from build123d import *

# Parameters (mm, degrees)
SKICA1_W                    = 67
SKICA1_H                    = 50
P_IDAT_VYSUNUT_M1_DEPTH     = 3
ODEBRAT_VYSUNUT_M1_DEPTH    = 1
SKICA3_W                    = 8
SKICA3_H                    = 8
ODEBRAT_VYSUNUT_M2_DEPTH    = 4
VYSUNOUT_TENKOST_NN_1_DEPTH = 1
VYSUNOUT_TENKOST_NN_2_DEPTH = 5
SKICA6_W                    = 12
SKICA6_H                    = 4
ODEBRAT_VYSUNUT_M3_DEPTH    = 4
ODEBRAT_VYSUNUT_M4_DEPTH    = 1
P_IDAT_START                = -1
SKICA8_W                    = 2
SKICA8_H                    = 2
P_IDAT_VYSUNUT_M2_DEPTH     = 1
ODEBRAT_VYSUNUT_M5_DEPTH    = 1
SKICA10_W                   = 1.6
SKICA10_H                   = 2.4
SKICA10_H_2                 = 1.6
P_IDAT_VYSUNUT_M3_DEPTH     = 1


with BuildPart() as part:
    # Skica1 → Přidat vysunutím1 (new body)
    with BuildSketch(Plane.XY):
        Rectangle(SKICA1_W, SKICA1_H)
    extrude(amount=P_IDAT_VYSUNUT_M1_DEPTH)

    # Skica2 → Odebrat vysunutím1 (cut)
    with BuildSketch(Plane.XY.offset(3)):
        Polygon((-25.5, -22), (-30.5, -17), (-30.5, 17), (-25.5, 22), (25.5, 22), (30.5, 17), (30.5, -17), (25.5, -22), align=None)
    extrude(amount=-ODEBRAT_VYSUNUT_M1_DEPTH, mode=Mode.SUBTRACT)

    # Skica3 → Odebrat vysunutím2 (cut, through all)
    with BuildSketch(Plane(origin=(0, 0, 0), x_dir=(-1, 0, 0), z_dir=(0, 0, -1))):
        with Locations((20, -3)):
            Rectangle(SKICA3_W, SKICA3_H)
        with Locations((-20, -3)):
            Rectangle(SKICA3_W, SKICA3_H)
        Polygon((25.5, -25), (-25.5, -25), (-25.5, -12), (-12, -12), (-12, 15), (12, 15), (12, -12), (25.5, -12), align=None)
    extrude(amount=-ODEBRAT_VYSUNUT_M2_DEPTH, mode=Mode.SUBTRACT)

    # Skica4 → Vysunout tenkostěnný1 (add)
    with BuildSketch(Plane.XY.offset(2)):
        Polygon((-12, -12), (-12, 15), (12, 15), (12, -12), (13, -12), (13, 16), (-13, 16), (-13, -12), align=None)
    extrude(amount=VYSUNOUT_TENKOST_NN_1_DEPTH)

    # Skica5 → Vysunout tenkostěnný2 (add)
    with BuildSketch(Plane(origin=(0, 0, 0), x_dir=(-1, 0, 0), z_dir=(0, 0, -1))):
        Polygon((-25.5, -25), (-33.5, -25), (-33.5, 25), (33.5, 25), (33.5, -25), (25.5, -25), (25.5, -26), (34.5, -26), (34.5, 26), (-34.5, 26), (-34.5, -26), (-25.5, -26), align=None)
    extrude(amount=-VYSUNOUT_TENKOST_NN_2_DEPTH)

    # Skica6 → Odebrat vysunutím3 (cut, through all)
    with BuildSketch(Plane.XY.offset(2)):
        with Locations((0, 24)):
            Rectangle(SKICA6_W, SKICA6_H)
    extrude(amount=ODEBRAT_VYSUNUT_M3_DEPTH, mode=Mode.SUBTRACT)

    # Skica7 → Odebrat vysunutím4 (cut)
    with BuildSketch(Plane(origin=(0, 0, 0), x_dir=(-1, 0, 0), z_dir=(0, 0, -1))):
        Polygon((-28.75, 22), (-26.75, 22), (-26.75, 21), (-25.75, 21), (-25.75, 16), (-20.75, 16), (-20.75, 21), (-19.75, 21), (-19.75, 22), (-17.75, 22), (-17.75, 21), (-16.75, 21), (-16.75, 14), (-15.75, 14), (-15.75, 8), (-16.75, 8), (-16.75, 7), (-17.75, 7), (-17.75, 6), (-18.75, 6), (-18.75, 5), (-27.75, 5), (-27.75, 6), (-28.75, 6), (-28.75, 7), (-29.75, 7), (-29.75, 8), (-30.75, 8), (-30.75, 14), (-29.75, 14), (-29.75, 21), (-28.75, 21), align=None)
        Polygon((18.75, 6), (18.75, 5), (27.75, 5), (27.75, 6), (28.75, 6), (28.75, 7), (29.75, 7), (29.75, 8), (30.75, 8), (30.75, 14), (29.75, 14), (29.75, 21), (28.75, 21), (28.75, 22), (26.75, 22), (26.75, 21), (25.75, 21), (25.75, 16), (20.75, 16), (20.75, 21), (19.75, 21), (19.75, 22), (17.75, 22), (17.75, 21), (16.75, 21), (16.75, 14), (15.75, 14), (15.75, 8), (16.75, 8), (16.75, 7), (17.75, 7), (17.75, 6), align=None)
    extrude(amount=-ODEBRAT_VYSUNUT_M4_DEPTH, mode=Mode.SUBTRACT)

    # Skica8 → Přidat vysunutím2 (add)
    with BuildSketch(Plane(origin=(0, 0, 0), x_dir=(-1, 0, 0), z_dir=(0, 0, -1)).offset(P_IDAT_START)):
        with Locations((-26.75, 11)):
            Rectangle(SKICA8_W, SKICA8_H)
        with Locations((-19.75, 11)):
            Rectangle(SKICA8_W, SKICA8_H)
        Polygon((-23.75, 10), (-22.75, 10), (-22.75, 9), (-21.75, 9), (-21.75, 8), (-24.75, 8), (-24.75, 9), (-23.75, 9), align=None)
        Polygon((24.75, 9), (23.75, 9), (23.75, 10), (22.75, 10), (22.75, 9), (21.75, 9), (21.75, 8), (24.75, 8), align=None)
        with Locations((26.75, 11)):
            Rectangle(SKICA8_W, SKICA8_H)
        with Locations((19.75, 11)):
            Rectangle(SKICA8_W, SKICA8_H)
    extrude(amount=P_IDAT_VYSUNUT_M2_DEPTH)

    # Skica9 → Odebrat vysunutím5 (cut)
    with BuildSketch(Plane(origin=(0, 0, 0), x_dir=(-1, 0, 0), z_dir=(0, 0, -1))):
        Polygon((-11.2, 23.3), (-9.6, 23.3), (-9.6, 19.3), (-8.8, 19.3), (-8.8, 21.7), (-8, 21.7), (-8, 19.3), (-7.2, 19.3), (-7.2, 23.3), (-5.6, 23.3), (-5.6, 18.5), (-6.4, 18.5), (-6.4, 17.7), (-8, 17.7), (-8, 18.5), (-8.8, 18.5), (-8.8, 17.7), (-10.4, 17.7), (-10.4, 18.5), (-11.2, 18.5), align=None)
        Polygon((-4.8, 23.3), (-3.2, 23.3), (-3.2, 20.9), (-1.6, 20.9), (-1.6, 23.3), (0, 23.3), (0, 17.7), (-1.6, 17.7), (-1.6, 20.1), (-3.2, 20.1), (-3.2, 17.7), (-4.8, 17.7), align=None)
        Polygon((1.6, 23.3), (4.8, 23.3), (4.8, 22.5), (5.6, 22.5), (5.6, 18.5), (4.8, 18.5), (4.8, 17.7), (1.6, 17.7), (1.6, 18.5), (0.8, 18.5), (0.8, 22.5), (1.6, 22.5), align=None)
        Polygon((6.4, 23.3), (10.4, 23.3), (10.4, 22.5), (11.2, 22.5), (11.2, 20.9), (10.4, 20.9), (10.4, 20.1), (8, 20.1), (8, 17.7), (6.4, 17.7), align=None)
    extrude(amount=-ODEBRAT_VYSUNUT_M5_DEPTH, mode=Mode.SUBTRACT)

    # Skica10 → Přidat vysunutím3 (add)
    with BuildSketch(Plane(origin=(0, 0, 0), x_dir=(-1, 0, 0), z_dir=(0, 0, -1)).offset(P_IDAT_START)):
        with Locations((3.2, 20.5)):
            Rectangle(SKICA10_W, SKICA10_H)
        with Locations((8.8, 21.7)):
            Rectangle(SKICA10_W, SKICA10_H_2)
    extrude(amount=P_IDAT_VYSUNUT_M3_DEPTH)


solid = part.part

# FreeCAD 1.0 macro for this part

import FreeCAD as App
import Part
import Sketcher
from FreeCAD import Vector
Q = App.Units.Quantity


def add_polygon(sketch, points):
    """Adds a closed chain of lines whose ends are joined by coincident constraints."""
    first, n = sketch.GeometryCount, len(points)
    for a, b in zip(points, points[1:] + points[:1]):
        sketch.addGeometry(Part.LineSegment(App.Vector(*a, 0), App.Vector(*b, 0)), False)
    for i in range(n):
        sketch.addConstraint(Sketcher.Constraint("Coincident", first + i, 2, first + (i + 1) % n, 1))

doc = App.newDocument("Part")
params = doc.addObject("Spreadsheet::Sheet", "Params")
for row, (alias, value) in enumerate([
    ("sketch1_width", "67 mm"),
    ("sketch1_height", "50 mm"),
    ("pad1_length", "3 mm"),
    ("sketch2_width", "51 mm"),
    ("sketch2_height", "34 mm"),
    ("pocket1_length", "1 mm"),
    ("sketch3_width", "8 mm"),
    ("sketch3_width2", "51 mm"),
    ("sketch3_width3", "24 mm"),
    ("sketch3_height", "13 mm"),
    ("sketch3_height2", "27 mm"),
    ("sketch4_width", "24 mm"),
    ("sketch4_width2", "1 mm"),
    ("sketch4_height", "27 mm"),
    ("sketch4_height2", "28 mm"),
    ("pad2_length", "1 mm"),
    ("sketch5_width", "8 mm"),
    ("sketch5_width2", "67 mm"),
    ("sketch5_width3", "9 mm"),
    ("sketch5_height", "50 mm"),
    ("sketch5_height2", "1 mm"),
    ("pad3_length", "5 mm"),
    ("sketch6_width", "12 mm"),
    ("sketch6_height", "4 mm"),
    ("sketch7_width", "2 mm"),
    ("sketch7_width2", "1 mm"),
    ("sketch7_width3", "9 mm"),
    ("sketch7_height", "7 mm"),
    ("sketch7_height2", "6 mm"),
    ("pocket4_length", "1 mm"),
    ("sketch8_width", "2 mm"),
    ("sketch8_width2", "1 mm"),
    ("pad4_length", "1 mm"),
    ("sketch9_width", "4 mm"),
    ("sketch9_width2", "1.6 mm"),
    ("pocket5_length", "1 mm"),
    ("sketch10_width", "1.6 mm"),
    ("sketch10_height", "2.4 mm"),
    ("pad5_length", "1 mm"),
], start=1):
    params.set(f"A{row}", alias)
    params.set(f"B{row}", "=" + value)
    params.setAlias(f"B{row}", alias)

body = doc.addObject("PartDesign::Body", "Body")

# Sketch on XY plane
sketch1 = body.newObject("Sketcher::SketchObject", "Sketch")
sketch1.AttachmentSupport = (doc.getObject("XY_Plane"), [""])
sketch1.MapMode = "FlatFace"
add_polygon(sketch1, [(-34, 25), (-34, -25), (34, -25), (34, 25)])  # lines 0-3
sketch1.addConstraint(Sketcher.Constraint("Vertical", 0))
sketch1.addConstraint(Sketcher.Constraint("Horizontal", 1))
sketch1.addConstraint(Sketcher.Constraint("Vertical", 2))
sketch1.addConstraint(Sketcher.Constraint("Horizontal", 3))
sketch1.addConstraint(Sketcher.Constraint("Symmetric", 0, 2, 2, 2, -1, 1))
sketch1.addConstraint(Sketcher.Constraint("DistanceX", 1, 1, 1, 2, Q("67 mm")))
sketch1.addConstraint(Sketcher.Constraint("DistanceY", 0, 2, 0, 1, Q("50 mm")))
sketch1.setExpression("Constraints[9]", "Params.sketch1_width")
sketch1.setExpression("Constraints[10]", "Params.sketch1_height")
pad1 = body.newObject("PartDesign::Pad", "Pad")
pad1.Profile = sketch1
pad1.setExpression("Length", "Params.pad1_length")

# Sketch on XY plane
sketch2 = body.newObject("Sketcher::SketchObject", "Sketch001")
sketch2.AttachmentSupport = (doc.getObject("XY_Plane"), [""])
sketch2.MapMode = "FlatFace"
sketch2.AttachmentOffset = App.Placement(Vector(0, 0, 3), App.Rotation())
add_polygon(sketch2, [(-30, -17), (-26, -22), (26, -22), (30, -17), (30, 17), (26, 22), (-26, 22), (-30, 17)])  # lines 0-7
sketch2.addConstraint(Sketcher.Constraint("Horizontal", 1))
sketch2.addConstraint(Sketcher.Constraint("Vertical", 3))
sketch2.addConstraint(Sketcher.Constraint("Horizontal", 5))
sketch2.addConstraint(Sketcher.Constraint("Vertical", 7))
sketch2.addConstraint(Sketcher.Constraint("Symmetric", 0, 2, 4, 2, -1, 1))
sketch2.addConstraint(Sketcher.Constraint("Symmetric", 2, 2, 6, 2, -1, 1))
sketch2.addConstraint(Sketcher.Constraint("Perpendicular", 0, 2))
sketch2.addConstraint(Sketcher.Constraint("Perpendicular", 2, 4))
sketch2.addConstraint(Sketcher.Constraint("Perpendicular", 4, 6))
sketch2.addConstraint(Sketcher.Constraint("Horizontal", 3, 2, 6, 2))
sketch2.addConstraint(Sketcher.Constraint("Vertical", 1, 2, 4, 2))
sketch2.addConstraint(Sketcher.Constraint("DistanceX", 1, 1, 1, 2, Q("51 mm")))
sketch2.addConstraint(Sketcher.Constraint("DistanceY", 3, 1, 3, 2, Q("34 mm")))
sketch2.addConstraint(Sketcher.Constraint("DistanceY", 0, 2, -1, 1, Q("22 mm")))
sketch2.setExpression("Constraints[19]", "Params.sketch2_width")
sketch2.setExpression("Constraints[20]", "Params.sketch2_height")
pocket1 = body.newObject("PartDesign::Pocket", "Pocket")
pocket1.Profile = sketch2
pocket1.setExpression("Length", "Params.pocket1_length")

# Sketch on XY plane
sketch3 = body.newObject("Sketcher::SketchObject", "Sketch002")
sketch3.AttachmentSupport = (doc.getObject("XY_Plane"), [""])
sketch3.MapMode = "FlatFace"
add_polygon(sketch3, [(-16, 1), (-16, -7), (-24, -7), (-24, 1)])  # lines 0-3
add_polygon(sketch3, [(24, 1), (24, -7), (16, -7), (16, 1)])  # lines 4-7
add_polygon(sketch3, [(26, -25), (-26, -25), (-26, -12), (-12, -12), (-12, 15), (12, 15), (12, -12), (26, -12)])  # lines 8-15
sketch3.addConstraint(Sketcher.Constraint("Vertical", 0))
sketch3.addConstraint(Sketcher.Constraint("Horizontal", 1))
sketch3.addConstraint(Sketcher.Constraint("Vertical", 2))
sketch3.addConstraint(Sketcher.Constraint("Horizontal", 3))
sketch3.addConstraint(Sketcher.Constraint("Vertical", 4))
sketch3.addConstraint(Sketcher.Constraint("Horizontal", 5))
sketch3.addConstraint(Sketcher.Constraint("Vertical", 6))
sketch3.addConstraint(Sketcher.Constraint("Horizontal", 7))
sketch3.addConstraint(Sketcher.Constraint("Horizontal", 8))
sketch3.addConstraint(Sketcher.Constraint("Vertical", 9))
sketch3.addConstraint(Sketcher.Constraint("Horizontal", 10))
sketch3.addConstraint(Sketcher.Constraint("Vertical", 11))
sketch3.addConstraint(Sketcher.Constraint("Horizontal", 12))
sketch3.addConstraint(Sketcher.Constraint("Vertical", 13))
sketch3.addConstraint(Sketcher.Constraint("Horizontal", 14))
sketch3.addConstraint(Sketcher.Constraint("Vertical", 15))
sketch3.addConstraint(Sketcher.Constraint("Symmetric", 1, 2, 4, 2, -2))
sketch3.addConstraint(Sketcher.Constraint("Symmetric", 3, 2, 6, 2, -2))
sketch3.addConstraint(Sketcher.Constraint("Symmetric", 10, 2, 13, 2, -2))
sketch3.addConstraint(Sketcher.Constraint("Equal", 10, 14))
sketch3.addConstraint(Sketcher.Constraint("Equal", 7, 0))
sketch3.addConstraint(Sketcher.Constraint("DistanceX", 1, 2, 1, 1, Q("8 mm")))
sketch3.addConstraint(Sketcher.Constraint("DistanceX", 8, 2, 8, 1, Q("51 mm")))
sketch3.addConstraint(Sketcher.Constraint("DistanceX", 12, 1, 12, 2, Q("24 mm")))
sketch3.addConstraint(Sketcher.Constraint("DistanceY", 9, 1, 9, 2, Q("13 mm")))
sketch3.addConstraint(Sketcher.Constraint("DistanceY", 11, 1, 11, 2, Q("27 mm")))
sketch3.addConstraint(Sketcher.Constraint("DistanceX", 0, 2, -1, 1, Q("16 mm")))
sketch3.addConstraint(Sketcher.Constraint("DistanceY", 0, 2, -1, 1, Q("7 mm")))
sketch3.addConstraint(Sketcher.Constraint("DistanceY", 8, 2, -1, 1, Q("25 mm")))
sketch3.setExpression("Constraints[37]", "Params.sketch3_width")
sketch3.setExpression("Constraints[38]", "Params.sketch3_width2")
sketch3.setExpression("Constraints[39]", "Params.sketch3_width3")
sketch3.setExpression("Constraints[40]", "Params.sketch3_height")
sketch3.setExpression("Constraints[41]", "Params.sketch3_height2")
pocket2 = body.newObject("PartDesign::Pocket", "Pocket001")
pocket2.Profile = sketch3
pocket2.Type = "ThroughAll"
pocket2.Reversed = True

# Sketch on XY plane
sketch4 = body.newObject("Sketcher::SketchObject", "Sketch003")
sketch4.AttachmentSupport = (doc.getObject("XY_Plane"), [""])
sketch4.MapMode = "FlatFace"
sketch4.AttachmentOffset = App.Placement(Vector(0, 0, 2), App.Rotation())
add_polygon(sketch4, [(-12, -12), (-12, 15), (12, 15), (12, -12), (13, -12), (13, 16), (-13, 16), (-13, -12)])  # lines 0-7
sketch4.addConstraint(Sketcher.Constraint("Vertical", 0))
sketch4.addConstraint(Sketcher.Constraint("Horizontal", 1))
sketch4.addConstraint(Sketcher.Constraint("Vertical", 2))
sketch4.addConstraint(Sketcher.Constraint("Horizontal", 3))
sketch4.addConstraint(Sketcher.Constraint("Vertical", 4))
sketch4.addConstraint(Sketcher.Constraint("Horizontal", 5))
sketch4.addConstraint(Sketcher.Constraint("Vertical", 6))
sketch4.addConstraint(Sketcher.Constraint("Horizontal", 7))
sketch4.addConstraint(Sketcher.Constraint("Symmetric", 3, 2, 6, 2, -2))
sketch4.addConstraint(Sketcher.Constraint("Equal", 3, 7))
sketch4.addConstraint(Sketcher.Constraint("DistanceX", 1, 1, 1, 2, Q("24 mm")))
sketch4.addConstraint(Sketcher.Constraint("DistanceX", 3, 1, 3, 2, Q("1 mm")))
sketch4.addConstraint(Sketcher.Constraint("DistanceY", 0, 1, 0, 2, Q("27 mm")))
sketch4.addConstraint(Sketcher.Constraint("DistanceY", 4, 1, 4, 2, Q("28 mm")))
sketch4.addConstraint(Sketcher.Constraint("DistanceY", -1, 1, 0, 2, Q("15 mm")))
sketch4.setExpression("Constraints[18]", "Params.sketch4_width")
sketch4.setExpression("Constraints[19]", "Params.sketch4_width2")
sketch4.setExpression("Constraints[20]", "Params.sketch4_height")
sketch4.setExpression("Constraints[21]", "Params.sketch4_height2")
pad2 = body.newObject("PartDesign::Pad", "Pad001")
pad2.Profile = sketch4
pad2.setExpression("Length", "Params.pad2_length")

# Sketch on XY plane
sketch5 = body.newObject("Sketcher::SketchObject", "Sketch004")
sketch5.AttachmentSupport = (doc.getObject("XY_Plane"), [""])
sketch5.MapMode = "FlatFace"
add_polygon(sketch5, [(25.5, -25), (33.5, -25), (33.5, 25), (-33.5, 25), (-33.5, -25), (-25.5, -25), (-25.5, -26), (-34.5, -26), (-34.5, 26), (34.5, 26), (34.5, -26), (25.5, -26)])  # lines 0-11
sketch5.addConstraint(Sketcher.Constraint("Horizontal", 0))
sketch5.addConstraint(Sketcher.Constraint("Vertical", 1))
sketch5.addConstraint(Sketcher.Constraint("Horizontal", 2))
sketch5.addConstraint(Sketcher.Constraint("Vertical", 3))
sketch5.addConstraint(Sketcher.Constraint("Horizontal", 4))
sketch5.addConstraint(Sketcher.Constraint("Vertical", 5))
sketch5.addConstraint(Sketcher.Constraint("Horizontal", 6))
sketch5.addConstraint(Sketcher.Constraint("Vertical", 7))
sketch5.addConstraint(Sketcher.Constraint("Horizontal", 8))
sketch5.addConstraint(Sketcher.Constraint("Vertical", 9))
sketch5.addConstraint(Sketcher.Constraint("Horizontal", 10))
sketch5.addConstraint(Sketcher.Constraint("Vertical", 11))
sketch5.addConstraint(Sketcher.Constraint("Symmetric", 0, 2, 2, 2, -1, 1))
sketch5.addConstraint(Sketcher.Constraint("Symmetric", 6, 2, 8, 2, -1, 1))
sketch5.addConstraint(Sketcher.Constraint("Symmetric", 5, 2, 10, 2, -2))
sketch5.addConstraint(Sketcher.Constraint("Horizontal", 0, 2, 3, 2))
sketch5.addConstraint(Sketcher.Constraint("DistanceX", 0, 1, 0, 2, Q("8 mm")))
sketch5.addConstraint(Sketcher.Constraint("DistanceX", 2, 2, 2, 1, Q("67 mm")))
sketch5.addConstraint(Sketcher.Constraint("DistanceX", 6, 2, 6, 1, Q("9 mm")))
sketch5.addConstraint(Sketcher.Constraint("DistanceY", 1, 1, 1, 2, Q("50 mm")))
sketch5.addConstraint(Sketcher.Constraint("DistanceY", 5, 2, 5, 1, Q("1 mm")))
sketch5.setExpression("Constraints[28]", "Params.sketch5_width")
sketch5.setExpression("Constraints[29]", "Params.sketch5_width2")
sketch5.setExpression("Constraints[30]", "Params.sketch5_width3")
sketch5.setExpression("Constraints[31]", "Params.sketch5_height")
sketch5.setExpression("Constraints[32]", "Params.sketch5_height2")
pad3 = body.newObject("PartDesign::Pad", "Pad002")
pad3.Profile = sketch5
pad3.setExpression("Length", "Params.pad3_length")

# Sketch on XY plane
sketch6 = body.newObject("Sketcher::SketchObject", "Sketch005")
sketch6.AttachmentSupport = (doc.getObject("XY_Plane"), [""])
sketch6.MapMode = "FlatFace"
sketch6.AttachmentOffset = App.Placement(Vector(0, 0, 2), App.Rotation())
add_polygon(sketch6, [(-6, 26), (-6, 22), (6, 22), (6, 26)])  # lines 0-3
sketch6.addConstraint(Sketcher.Constraint("Vertical", 0))
sketch6.addConstraint(Sketcher.Constraint("Horizontal", 1))
sketch6.addConstraint(Sketcher.Constraint("Vertical", 2))
sketch6.addConstraint(Sketcher.Constraint("Horizontal", 3))
sketch6.addConstraint(Sketcher.Constraint("DistanceX", 1, 1, 1, 2, Q("12 mm")))
sketch6.addConstraint(Sketcher.Constraint("DistanceY", 0, 2, 0, 1, Q("4 mm")))
sketch6.addConstraint(Sketcher.Constraint("DistanceX", 0, 2, -1, 1, Q("6 mm")))
sketch6.addConstraint(Sketcher.Constraint("DistanceY", -1, 1, 0, 2, Q("22 mm")))
sketch6.setExpression("Constraints[8]", "Params.sketch6_width")
sketch6.setExpression("Constraints[9]", "Params.sketch6_height")
pocket3 = body.newObject("PartDesign::Pocket", "Pocket002")
pocket3.Profile = sketch6
pocket3.Type = "ThroughAll"
pocket3.Reversed = True

# Sketch on XY plane
sketch7 = body.newObject("Sketcher::SketchObject", "Sketch006")
sketch7.AttachmentSupport = (doc.getObject("XY_Plane"), [""])
sketch7.MapMode = "FlatFace"
add_polygon(sketch7, [(26.8, 22), (28.8, 22), (28.8, 21), (29.8, 21), (29.8, 14), (30.8, 14), (30.8, 8), (29.8, 8), (29.8, 7), (28.8, 7), (28.8, 6), (27.8, 6), (27.8, 5), (18.8, 5), (18.8, 6), (17.8, 6), (17.8, 7), (16.8, 7), (16.8, 8), (15.8, 8), (15.8, 14), (16.8, 14), (16.8, 21), (17.8, 21), (17.8, 22), (19.8, 22), (19.8, 21), (20.8, 21), (20.8, 16), (25.8, 16), (25.8, 21), (26.8, 21)])  # lines 0-31
add_polygon(sketch7, [(-18.8, 6), (-18.8, 5), (-27.8, 5), (-27.8, 6), (-28.8, 6), (-28.8, 7), (-29.8, 7), (-29.8, 8), (-30.8, 8), (-30.8, 14), (-29.8, 14), (-29.8, 21), (-28.8, 21), (-28.8, 22), (-26.8, 22), (-26.8, 21), (-25.8, 21), (-25.8, 16), (-20.8, 16), (-20.8, 21), (-19.8, 21), (-19.8, 22), (-17.8, 22), (-17.8, 21), (-16.8, 21), (-16.8, 14), (-15.8, 14), (-15.8, 8), (-16.8, 8), (-16.8, 7), (-17.8, 7), (-17.8, 6)])  # lines 32-63
sketch7.addConstraint(Sketcher.Constraint("Horizontal", 0))
sketch7.addConstraint(Sketcher.Constraint("Vertical", 1))
sketch7.addConstraint(Sketcher.Constraint("Horizontal", 2))
sketch7.addConstraint(Sketcher.Constraint("Vertical", 3))
sketch7.addConstraint(Sketcher.Constraint("Horizontal", 4))
sketch7.addConstraint(Sketcher.Constraint("Vertical", 5))
sketch7.addConstraint(Sketcher.Constraint("Horizontal", 6))
sketch7.addConstraint(Sketcher.Constraint("Vertical", 7))
sketch7.addConstraint(Sketcher.Constraint("Horizontal", 8))
sketch7.addConstraint(Sketcher.Constraint("Vertical", 9))
sketch7.addConstraint(Sketcher.Constraint("Horizontal", 10))
sketch7.addConstraint(Sketcher.Constraint("Vertical", 11))
sketch7.addConstraint(Sketcher.Constraint("Horizontal", 12))
sketch7.addConstraint(Sketcher.Constraint("Vertical", 13))
sketch7.addConstraint(Sketcher.Constraint("Horizontal", 14))
sketch7.addConstraint(Sketcher.Constraint("Vertical", 15))
sketch7.addConstraint(Sketcher.Constraint("Horizontal", 16))
sketch7.addConstraint(Sketcher.Constraint("Vertical", 17))
sketch7.addConstraint(Sketcher.Constraint("Horizontal", 18))
sketch7.addConstraint(Sketcher.Constraint("Vertical", 19))
sketch7.addConstraint(Sketcher.Constraint("Horizontal", 20))
sketch7.addConstraint(Sketcher.Constraint("Vertical", 21))
sketch7.addConstraint(Sketcher.Constraint("Horizontal", 22))
sketch7.addConstraint(Sketcher.Constraint("Vertical", 23))
sketch7.addConstraint(Sketcher.Constraint("Horizontal", 24))
sketch7.addConstraint(Sketcher.Constraint("Vertical", 25))
sketch7.addConstraint(Sketcher.Constraint("Horizontal", 26))
sketch7.addConstraint(Sketcher.Constraint("Vertical", 27))
sketch7.addConstraint(Sketcher.Constraint("Horizontal", 28))
sketch7.addConstraint(Sketcher.Constraint("Vertical", 29))
sketch7.addConstraint(Sketcher.Constraint("Horizontal", 30))
sketch7.addConstraint(Sketcher.Constraint("Vertical", 31))
sketch7.addConstraint(Sketcher.Constraint("Vertical", 32))
sketch7.addConstraint(Sketcher.Constraint("Horizontal", 33))
sketch7.addConstraint(Sketcher.Constraint("Vertical", 34))
sketch7.addConstraint(Sketcher.Constraint("Horizontal", 35))
sketch7.addConstraint(Sketcher.Constraint("Vertical", 36))
sketch7.addConstraint(Sketcher.Constraint("Horizontal", 37))
sketch7.addConstraint(Sketcher.Constraint("Vertical", 38))
sketch7.addConstraint(Sketcher.Constraint("Horizontal", 39))
sketch7.addConstraint(Sketcher.Constraint("Vertical", 40))
sketch7.addConstraint(Sketcher.Constraint("Horizontal", 41))
sketch7.addConstraint(Sketcher.Constraint("Vertical", 42))
sketch7.addConstraint(Sketcher.Constraint("Horizontal", 43))
sketch7.addConstraint(Sketcher.Constraint("Vertical", 44))
sketch7.addConstraint(Sketcher.Constraint("Horizontal", 45))
sketch7.addConstraint(Sketcher.Constraint("Vertical", 46))
sketch7.addConstraint(Sketcher.Constraint("Horizontal", 47))
sketch7.addConstraint(Sketcher.Constraint("Vertical", 48))
sketch7.addConstraint(Sketcher.Constraint("Horizontal", 49))
sketch7.addConstraint(Sketcher.Constraint("Vertical", 50))
sketch7.addConstraint(Sketcher.Constraint("Horizontal", 51))
sketch7.addConstraint(Sketcher.Constraint("Vertical", 52))
sketch7.addConstraint(Sketcher.Constraint("Horizontal", 53))
sketch7.addConstraint(Sketcher.Constraint("Vertical", 54))
sketch7.addConstraint(Sketcher.Constraint("Horizontal", 55))
sketch7.addConstraint(Sketcher.Constraint("Vertical", 56))
sketch7.addConstraint(Sketcher.Constraint("Horizontal", 57))
sketch7.addConstraint(Sketcher.Constraint("Vertical", 58))
sketch7.addConstraint(Sketcher.Constraint("Horizontal", 59))
sketch7.addConstraint(Sketcher.Constraint("Vertical", 60))
sketch7.addConstraint(Sketcher.Constraint("Horizontal", 61))
sketch7.addConstraint(Sketcher.Constraint("Vertical", 62))
sketch7.addConstraint(Sketcher.Constraint("Horizontal", 63))
sketch7.addConstraint(Sketcher.Constraint("Symmetric", 12, 2, 32, 2, -2))
sketch7.addConstraint(Sketcher.Constraint("Symmetric", 10, 2, 34, 2, -2))
sketch7.addConstraint(Sketcher.Constraint("Symmetric", 8, 2, 36, 2, -2))
sketch7.addConstraint(Sketcher.Constraint("Symmetric", 6, 2, 38, 2, -2))
sketch7.addConstraint(Sketcher.Constraint("Symmetric", 4, 2, 40, 2, -2))
sketch7.addConstraint(Sketcher.Constraint("Symmetric", 2, 2, 42, 2, -2))
sketch7.addConstraint(Sketcher.Constraint("Symmetric", 0, 2, 44, 2, -2))
sketch7.addConstraint(Sketcher.Constraint("Symmetric", 30, 2, 46, 2, -2))
sketch7.addConstraint(Sketcher.Constraint("Symmetric", 28, 2, 48, 2, -2))
sketch7.addConstraint(Sketcher.Constraint("Symmetric", 26, 2, 50, 2, -2))
sketch7.addConstraint(Sketcher.Constraint("Symmetric", 24, 2, 52, 2, -2))
sketch7.addConstraint(Sketcher.Constraint("Symmetric", 22, 2, 54, 2, -2))
sketch7.addConstraint(Sketcher.Constraint("Symmetric", 20, 2, 56, 2, -2))
sketch7.addConstraint(Sketcher.Constraint("Symmetric", 18, 2, 58, 2, -2))
sketch7.addConstraint(Sketcher.Constraint("Symmetric", 16, 2, 60, 2, -2))
sketch7.addConstraint(Sketcher.Constraint("Symmetric", 14, 2, 62, 2, -2))
sketch7.addConstraint(Sketcher.Constraint("Horizontal", 10, 2, 13, 2))
sketch7.addConstraint(Sketcher.Constraint("Horizontal", 8, 2, 15, 2))
sketch7.addConstraint(Sketcher.Constraint("Horizontal", 6, 2, 17, 2))
sketch7.addConstraint(Sketcher.Constraint("Horizontal", 4, 2, 19, 2))
sketch7.addConstraint(Sketcher.Constraint("Horizontal", 2, 2, 21, 2))
sketch7.addConstraint(Sketcher.Constraint("Horizontal", 0, 2, 23, 2))
sketch7.addConstraint(Sketcher.Constraint("Horizontal", 22, 2, 25, 2))
sketch7.addConstraint(Sketcher.Constraint("Horizontal", 26, 2, 29, 2))
sketch7.addConstraint(Sketcher.Constraint("Vertical", 3, 2, 6, 2))
sketch7.addConstraint(Sketcher.Constraint("Vertical", 1, 2, 8, 2))
sketch7.addConstraint(Sketcher.Constraint("Vertical", 17, 2, 20, 2))
sketch7.addConstraint(Sketcher.Constraint("Vertical", 15, 2, 22, 2))
sketch7.addConstraint(Sketcher.Constraint("Equal", 2, 4))
sketch7.addConstraint(Sketcher.Constraint("Equal", 8, 10))
sketch7.addConstraint(Sketcher.Constraint("Equal", 10, 14))
sketch7.addConstraint(Sketcher.Constraint("Equal", 14, 16))
sketch7.addConstraint(Sketcher.Constraint("Equal", 16, 18))
sketch7.addConstraint(Sketcher.Constraint("Equal", 0, 24))
sketch7.addConstraint(Sketcher.Constraint("Equal", 22, 26))
sketch7.addConstraint(Sketcher.Constraint("Equal", 26, 30))
sketch7.addConstraint(Sketcher.Constraint("Equal", 63, 1))
sketch7.addConstraint(Sketcher.Constraint("Equal", 1, 7))
sketch7.addConstraint(Sketcher.Constraint("Equal", 7, 9))
sketch7.addConstraint(Sketcher.Constraint("Equal", 9, 11))
sketch7.addConstraint(Sketcher.Constraint("Equal", 49, 27))
sketch7.addConstraint(Sketcher.Constraint("DistanceX", 0, 1, 0, 2, Q("2 mm")))
sketch7.addConstraint(Sketcher.Constraint("DistanceX", 2, 1, 2, 2, Q("1 mm")))
sketch7.addConstraint(Sketcher.Constraint("DistanceX", 12, 2, 12, 1, Q("9 mm")))
sketch7.addConstraint(Sketcher.Constraint("DistanceY", 3, 2, 3, 1, Q("7 mm")))
sketch7.addConstraint(Sketcher.Constraint("DistanceY", 5, 2, 5, 1, Q("6 mm")))
sketch7.addConstraint(Sketcher.Constraint("DistanceY", -1, 1, 0, 2, Q("22 mm")))
sketch7.addConstraint(Sketcher.Constraint("DistanceX", -1, 1, 0, 2, Q("28.75 mm")))
sketch7.setExpression("Constraints[169]", "Params.sketch7_width")
sketch7.setExpression("Constraints[170]", "Params.sketch7_width2")
sketch7.setExpression("Constraints[171]", "Params.sketch7_width3")
sketch7.setExpression("Constraints[172]", "Params.sketch7_height")
sketch7.setExpression("Constraints[173]", "Params.sketch7_height2")
pocket4 = body.newObject("PartDesign::Pocket", "Pocket003")
pocket4.Profile = sketch7
pocket4.setExpression("Length", "Params.pocket4_length")
pocket4.Reversed = True

# Sketch on XY plane
sketch8 = body.newObject("Sketcher::SketchObject", "Sketch007")
sketch8.AttachmentSupport = (doc.getObject("XY_Plane"), [""])
sketch8.MapMode = "FlatFace"
sketch8.AttachmentOffset = App.Placement(Vector(0, 0, 1), App.Rotation())
add_polygon(sketch8, [(27.8, 12), (27.8, 10), (25.8, 10), (25.8, 12)])  # lines 0-3
add_polygon(sketch8, [(20.8, 12), (20.8, 10), (18.8, 10), (18.8, 12)])  # lines 4-7
add_polygon(sketch8, [(22.8, 10), (23.8, 10), (23.8, 9), (24.8, 9), (24.8, 8), (21.8, 8), (21.8, 9), (22.8, 9)])  # lines 8-15
add_polygon(sketch8, [(-24.8, 9), (-23.8, 9), (-23.8, 10), (-22.8, 10), (-22.8, 9), (-21.8, 9), (-21.8, 8), (-24.8, 8)])  # lines 16-23
add_polygon(sketch8, [(-25.8, 12), (-25.8, 10), (-27.8, 10), (-27.8, 12)])  # lines 24-27
add_polygon(sketch8, [(-18.8, 12), (-18.8, 10), (-20.8, 10), (-20.8, 12)])  # lines 28-31
sketch8.addConstraint(Sketcher.Constraint("Vertical", 0))
sketch8.addConstraint(Sketcher.Constraint("Horizontal", 1))
sketch8.addConstraint(Sketcher.Constraint("Vertical", 2))
sketch8.addConstraint(Sketcher.Constraint("Horizontal", 3))
sketch8.addConstraint(Sketcher.Constraint("Vertical", 4))
sketch8.addConstraint(Sketcher.Constraint("Horizontal", 5))
sketch8.addConstraint(Sketcher.Constraint("Vertical", 6))
sketch8.addConstraint(Sketcher.Constraint("Horizontal", 7))
sketch8.addConstraint(Sketcher.Constraint("Horizontal", 8))
sketch8.addConstraint(Sketcher.Constraint("Vertical", 9))
sketch8.addConstraint(Sketcher.Constraint("Horizontal", 10))
sketch8.addConstraint(Sketcher.Constraint("Vertical", 11))
sketch8.addConstraint(Sketcher.Constraint("Horizontal", 12))
sketch8.addConstraint(Sketcher.Constraint("Vertical", 13))
sketch8.addConstraint(Sketcher.Constraint("Horizontal", 14))
sketch8.addConstraint(Sketcher.Constraint("Vertical", 15))
sketch8.addConstraint(Sketcher.Constraint("Horizontal", 16))
sketch8.addConstraint(Sketcher.Constraint("Vertical", 17))
sketch8.addConstraint(Sketcher.Constraint("Horizontal", 18))
sketch8.addConstraint(Sketcher.Constraint("Vertical", 19))
sketch8.addConstraint(Sketcher.Constraint("Horizontal", 20))
sketch8.addConstraint(Sketcher.Constraint("Vertical", 21))
sketch8.addConstraint(Sketcher.Constraint("Horizontal", 22))
sketch8.addConstraint(Sketcher.Constraint("Vertical", 23))
sketch8.addConstraint(Sketcher.Constraint("Vertical", 24))
sketch8.addConstraint(Sketcher.Constraint("Horizontal", 25))
sketch8.addConstraint(Sketcher.Constraint("Vertical", 26))
sketch8.addConstraint(Sketcher.Constraint("Horizontal", 27))
sketch8.addConstraint(Sketcher.Constraint("Vertical", 28))
sketch8.addConstraint(Sketcher.Constraint("Horizontal", 29))
sketch8.addConstraint(Sketcher.Constraint("Vertical", 30))
sketch8.addConstraint(Sketcher.Constraint("Horizontal", 31))
sketch8.addConstraint(Sketcher.Constraint("Symmetric", 9, 2, 16, 2, -2))
sketch8.addConstraint(Sketcher.Constraint("Symmetric", 15, 2, 18, 2, -2))
sketch8.addConstraint(Sketcher.Constraint("Symmetric", 13, 2, 20, 2, -2))
sketch8.addConstraint(Sketcher.Constraint("Symmetric", 11, 2, 22, 2, -2))
sketch8.addConstraint(Sketcher.Constraint("Symmetric", 1, 2, 24, 2, -2))
sketch8.addConstraint(Sketcher.Constraint("Symmetric", 3, 2, 26, 2, -2))
sketch8.addConstraint(Sketcher.Constraint("Symmetric", 5, 2, 28, 2, -2))
sketch8.addConstraint(Sketcher.Constraint("Symmetric", 7, 2, 30, 2, -2))
sketch8.addConstraint(Sketcher.Constraint("Horizontal", 1, 2, 4, 2))
sketch8.addConstraint(Sketcher.Constraint("Horizontal", 3, 2, 6, 2))
sketch8.addConstraint(Sketcher.Constraint("Horizontal", 5, 2, 8, 2))
sketch8.addConstraint(Sketcher.Constraint("Horizontal", 10, 2, 13, 2))
sketch8.addConstraint(Sketcher.Constraint("Equal", 3, 5))
sketch8.addConstraint(Sketcher.Constraint("Equal", 8, 10))
sketch8.addConstraint(Sketcher.Constraint("Equal", 10, 14))
sketch8.addConstraint(Sketcher.Constraint("Equal", 31, 0))
sketch8.addConstraint(Sketcher.Constraint("Equal", 20, 9))
sketch8.addConstraint(Sketcher.Constraint("Equal", 9, 11))
sketch8.addConstraint(Sketcher.Constraint("DistanceX", 1, 2, 1, 1, Q("2 mm")))
sketch8.addConstraint(Sketcher.Constraint("DistanceX", 8, 1, 8, 2, Q("1 mm")))
sketch8.addConstraint(Sketcher.Constraint("DistanceY", -1, 1, 0, 2, Q("10 mm")))
sketch8.addConstraint(Sketcher.Constraint("DistanceX", 4, 2, 1, 2, Q("5 mm")))
sketch8.addConstraint(Sketcher.Constraint("DistanceX", 8, 2, 1, 2, Q("2 mm")))
sketch8.addConstraint(Sketcher.Constraint("DistanceX", 16, 2, 5, 2, Q("42.5 mm")))
sketch8.setExpression("Constraints[82]", "Params.sketch8_width")
sketch8.setExpression("Constraints[83]", "Params.sketch8_width2")
pad4 = body.newObject("PartDesign::Pad", "Pad003")
pad4.Profile = sketch8
pad4.setExpression("Length", "Params.pad4_length")
pad4.Reversed = True

# Sketch on XY plane
sketch9 = body.newObject("Sketcher::SketchObject", "Sketch008")
sketch9.AttachmentSupport = (doc.getObject("XY_Plane"), [""])
sketch9.MapMode = "FlatFace"
add_polygon(sketch9, [(9.6, 23.3), (11.2, 23.3), (11.2, 18.5), (10.4, 18.5), (10.4, 17.7), (8.8, 17.7), (8.8, 18.5), (8, 18.5), (8, 17.7), (6.4, 17.7), (6.4, 18.5), (5.6, 18.5), (5.6, 23.3), (7.2, 23.3), (7.2, 19.3), (8, 19.3), (8, 21.7), (8.8, 21.7), (8.8, 19.3), (9.6, 19.3)])  # lines 0-19
add_polygon(sketch9, [(3.2, 23.3), (4.8, 23.3), (4.8, 17.7), (3.2, 17.7), (3.2, 20.1), (1.6, 20.1), (1.6, 17.7), (0, 17.7), (0, 23.3), (1.6, 23.3), (1.6, 20.9), (3.2, 20.9)])  # lines 20-31
add_polygon(sketch9, [(-4.8, 23.3), (-1.6, 23.3), (-1.6, 22.5), (-0.8, 22.5), (-0.8, 18.5), (-1.6, 18.5), (-1.6, 17.7), (-4.8, 17.7), (-4.8, 18.5), (-5.6, 18.5), (-5.6, 22.5), (-4.8, 22.5)])  # lines 32-43
add_polygon(sketch9, [(-10.4, 23.3), (-6.4, 23.3), (-6.4, 17.7), (-8, 17.7), (-8, 20.1), (-10.4, 20.1), (-10.4, 20.9), (-11.2, 20.9), (-11.2, 22.5), (-10.4, 22.5)])  # lines 44-53
sketch9.addConstraint(Sketcher.Constraint("Horizontal", 0))
sketch9.addConstraint(Sketcher.Constraint("Vertical", 1))
sketch9.addConstraint(Sketcher.Constraint("Horizontal", 2))
sketch9.addConstraint(Sketcher.Constraint("Vertical", 3))
sketch9.addConstraint(Sketcher.Constraint("Horizontal", 4))
sketch9.addConstraint(Sketcher.Constraint("Vertical", 5))
sketch9.addConstraint(Sketcher.Constraint("Horizontal", 6))
sketch9.addConstraint(Sketcher.Constraint("Vertical", 7))
sketch9.addConstraint(Sketcher.Constraint("Horizontal", 8))
sketch9.addConstraint(Sketcher.Constraint("Vertical", 9))
sketch9.addConstraint(Sketcher.Constraint("Horizontal", 10))
sketch9.addConstraint(Sketcher.Constraint("Vertical", 11))
sketch9.addConstraint(Sketcher.Constraint("Horizontal", 12))
sketch9.addConstraint(Sketcher.Constraint("Vertical", 13))
sketch9.addConstraint(Sketcher.Constraint("Horizontal", 14))
sketch9.addConstraint(Sketcher.Constraint("Vertical", 15))
sketch9.addConstraint(Sketcher.Constraint("Horizontal", 16))
sketch9.addConstraint(Sketcher.Constraint("Vertical", 17))
sketch9.addConstraint(Sketcher.Constraint("Horizontal", 18))
sketch9.addConstraint(Sketcher.Constraint("Vertical", 19))
sketch9.addConstraint(Sketcher.Constraint("Horizontal", 20))
sketch9.addConstraint(Sketcher.Constraint("Vertical", 21))
sketch9.addConstraint(Sketcher.Constraint("Horizontal", 22))
sketch9.addConstraint(Sketcher.Constraint("Vertical", 23))
sketch9.addConstraint(Sketcher.Constraint("Horizontal", 24))
sketch9.addConstraint(Sketcher.Constraint("Vertical", 25))
sketch9.addConstraint(Sketcher.Constraint("Horizontal", 26))
sketch9.addConstraint(Sketcher.Constraint("Vertical", 27))
sketch9.addConstraint(Sketcher.Constraint("Horizontal", 28))
sketch9.addConstraint(Sketcher.Constraint("Vertical", 29))
sketch9.addConstraint(Sketcher.Constraint("Horizontal", 30))
sketch9.addConstraint(Sketcher.Constraint("Vertical", 31))
sketch9.addConstraint(Sketcher.Constraint("Horizontal", 32))
sketch9.addConstraint(Sketcher.Constraint("Vertical", 33))
sketch9.addConstraint(Sketcher.Constraint("Horizontal", 34))
sketch9.addConstraint(Sketcher.Constraint("Vertical", 35))
sketch9.addConstraint(Sketcher.Constraint("Horizontal", 36))
sketch9.addConstraint(Sketcher.Constraint("Vertical", 37))
sketch9.addConstraint(Sketcher.Constraint("Horizontal", 38))
sketch9.addConstraint(Sketcher.Constraint("Vertical", 39))
sketch9.addConstraint(Sketcher.Constraint("Horizontal", 40))
sketch9.addConstraint(Sketcher.Constraint("Vertical", 41))
sketch9.addConstraint(Sketcher.Constraint("Horizontal", 42))
sketch9.addConstraint(Sketcher.Constraint("Vertical", 43))
sketch9.addConstraint(Sketcher.Constraint("Horizontal", 44))
sketch9.addConstraint(Sketcher.Constraint("Vertical", 45))
sketch9.addConstraint(Sketcher.Constraint("Horizontal", 46))
sketch9.addConstraint(Sketcher.Constraint("Vertical", 47))
sketch9.addConstraint(Sketcher.Constraint("Horizontal", 48))
sketch9.addConstraint(Sketcher.Constraint("Vertical", 49))
sketch9.addConstraint(Sketcher.Constraint("Horizontal", 50))
sketch9.addConstraint(Sketcher.Constraint("Vertical", 51))
sketch9.addConstraint(Sketcher.Constraint("Horizontal", 52))
sketch9.addConstraint(Sketcher.Constraint("Vertical", 53))
sketch9.addConstraint(Sketcher.Constraint("Symmetric", 28, 2, 32, 2, -2))
sketch9.addConstraint(Sketcher.Constraint("Symmetric", 25, 2, 37, 2, -2))
sketch9.addConstraint(Sketcher.Constraint("Symmetric", 21, 2, 38, 2, -2))
sketch9.addConstraint(Sketcher.Constraint("Symmetric", 10, 2, 40, 2, -2))
sketch9.addConstraint(Sketcher.Constraint("Symmetric", 20, 2, 43, 2, -2))
sketch9.addConstraint(Sketcher.Constraint("Symmetric", 8, 2, 45, 2, -2))
sketch9.addConstraint(Sketcher.Constraint("PointOnObject", 26, 2, -2))
sketch9.addConstraint(Sketcher.Constraint("Horizontal", 2, 2, 5, 2))
sketch9.addConstraint(Sketcher.Constraint("Horizontal", 4, 2, 7, 2))
sketch9.addConstraint(Sketcher.Constraint("Horizontal", 6, 2, 9, 2))
sketch9.addConstraint(Sketcher.Constraint("Horizontal", 0, 2, 11, 2))
sketch9.addConstraint(Sketcher.Constraint("Horizontal", 14, 2, 17, 2))
sketch9.addConstraint(Sketcher.Constraint("Horizontal", 19, 2, 20, 2))
sketch9.addConstraint(Sketcher.Constraint("Horizontal", 8, 2, 21, 2))
sketch9.addConstraint(Sketcher.Constraint("Horizontal", 10, 2, 35, 2))
sketch9.addConstraint(Sketcher.Constraint("Horizontal", 34, 2, 41, 2))
sketch9.addConstraint(Sketcher.Constraint("Horizontal", 43, 2, 44, 2))
sketch9.addConstraint(Sketcher.Constraint("Horizontal", 24, 2, 47, 2))
sketch9.addConstraint(Sketcher.Constraint("Horizontal", 30, 2, 49, 2))
sketch9.addConstraint(Sketcher.Constraint("Horizontal", 42, 2, 51, 2))
sketch9.addConstraint(Sketcher.Constraint("Vertical", 7, 2, 14, 2))
sketch9.addConstraint(Sketcher.Constraint("Vertical", 5, 2, 16, 2))
sketch9.addConstraint(Sketcher.Constraint("Vertical", 25, 2, 28, 2))
sketch9.addConstraint(Sketcher.Constraint("Vertical", 23, 2, 30, 2))
sketch9.addConstraint(Sketcher.Constraint("Vertical", 49, 2, 52, 2))
sketch9.addConstraint(Sketcher.Constraint("Equal", 0, 4))
sketch9.addConstraint(Sketcher.Constraint("Equal", 2, 6))
sketch9.addConstraint(Sketcher.Constraint("Equal", 4, 8))
sketch9.addConstraint(Sketcher.Constraint("Equal", 6, 10))
sketch9.addConstraint(Sketcher.Constraint("Equal", 8, 12))
sketch9.addConstraint(Sketcher.Constraint("Equal", 12, 20))
sketch9.addConstraint(Sketcher.Constraint("Equal", 22, 24))
sketch9.addConstraint(Sketcher.Constraint("Equal", 24, 26))
sketch9.addConstraint(Sketcher.Constraint("Equal", 18, 34))
sketch9.addConstraint(Sketcher.Constraint("Equal", 36, 40))
sketch9.addConstraint(Sketcher.Constraint("Equal", 30, 46))
sketch9.addConstraint(Sketcher.Constraint("Equal", 42, 50))
sketch9.addConstraint(Sketcher.Constraint("Equal", 52, 3))
sketch9.addConstraint(Sketcher.Constraint("Equal", 44, 13))
sketch9.addConstraint(Sketcher.Constraint("Equal", 48, 15))
sketch9.addConstraint(Sketcher.Constraint("Equal", 17, 23))
sketch9.addConstraint(Sketcher.Constraint("Equal", 25, 29))
sketch9.addConstraint(Sketcher.Constraint("Equal", 9, 33))
sketch9.addConstraint(Sketcher.Constraint("Equal", 19, 35))
sketch9.addConstraint(Sketcher.Constraint("Equal", 43, 49))
sketch9.addConstraint(Sketcher.Constraint("DistanceX", 44, 1, 44, 2, Q("4 mm")))
sketch9.addConstraint(Sketcher.Constraint("DistanceX", 0, 1, 0, 2, Q("1.6 mm")))
sketch9.addConstraint(Sketcher.Constraint("DistanceY", -1, 1, 0, 2, Q("23.3 mm")))
sketch9.setExpression("Constraints[153]", "Params.sketch9_width")
sketch9.setExpression("Constraints[154]", "Params.sketch9_width2")
pocket5 = body.newObject("PartDesign::Pocket", "Pocket004")
pocket5.Profile = sketch9
pocket5.setExpression("Length", "Params.pocket5_length")
pocket5.Reversed = True

# Sketch on XY plane
sketch10 = body.newObject("Sketcher::SketchObject", "Sketch009")
sketch10.AttachmentSupport = (doc.getObject("XY_Plane"), [""])
sketch10.MapMode = "FlatFace"
sketch10.AttachmentOffset = App.Placement(Vector(0, 0, 1), App.Rotation())
add_polygon(sketch10, [(-2.4, 21.7), (-2.4, 19.3), (-4, 19.3), (-4, 21.7)])  # lines 0-3
add_polygon(sketch10, [(-8, 22.5), (-8, 20.9), (-9.6, 20.9), (-9.6, 22.5)])  # lines 4-7
sketch10.addConstraint(Sketcher.Constraint("Vertical", 0))
sketch10.addConstraint(Sketcher.Constraint("Horizontal", 1))
sketch10.addConstraint(Sketcher.Constraint("Vertical", 2))
sketch10.addConstraint(Sketcher.Constraint("Horizontal", 3))
sketch10.addConstraint(Sketcher.Constraint("Vertical", 4))
sketch10.addConstraint(Sketcher.Constraint("Horizontal", 5))
sketch10.addConstraint(Sketcher.Constraint("Vertical", 6))
sketch10.addConstraint(Sketcher.Constraint("Horizontal", 7))
sketch10.addConstraint(Sketcher.Constraint("Equal", 3, 5))
sketch10.addConstraint(Sketcher.Constraint("Equal", 7, 4))
sketch10.addConstraint(Sketcher.Constraint("DistanceX", 1, 2, 1, 1, Q("1.6 mm")))
sketch10.addConstraint(Sketcher.Constraint("DistanceY", 0, 2, 0, 1, Q("2.4 mm")))
sketch10.addConstraint(Sketcher.Constraint("DistanceX", 1, 2, -1, 1, Q("4 mm")))
sketch10.addConstraint(Sketcher.Constraint("DistanceX", 4, 2, -1, 1, Q("8 mm")))
sketch10.addConstraint(Sketcher.Constraint("DistanceY", -1, 1, 0, 2, Q("19.3 mm")))
sketch10.addConstraint(Sketcher.Constraint("DistanceY", -1, 1, 4, 2, Q("20.9 mm")))
sketch10.setExpression("Constraints[18]", "Params.sketch10_width")
sketch10.setExpression("Constraints[19]", "Params.sketch10_height")
pad5 = body.newObject("PartDesign::Pad", "Pad004")
pad5.Profile = sketch10
pad5.setExpression("Length", "Params.pad5_length")
pad5.Reversed = True

doc.recompute()
